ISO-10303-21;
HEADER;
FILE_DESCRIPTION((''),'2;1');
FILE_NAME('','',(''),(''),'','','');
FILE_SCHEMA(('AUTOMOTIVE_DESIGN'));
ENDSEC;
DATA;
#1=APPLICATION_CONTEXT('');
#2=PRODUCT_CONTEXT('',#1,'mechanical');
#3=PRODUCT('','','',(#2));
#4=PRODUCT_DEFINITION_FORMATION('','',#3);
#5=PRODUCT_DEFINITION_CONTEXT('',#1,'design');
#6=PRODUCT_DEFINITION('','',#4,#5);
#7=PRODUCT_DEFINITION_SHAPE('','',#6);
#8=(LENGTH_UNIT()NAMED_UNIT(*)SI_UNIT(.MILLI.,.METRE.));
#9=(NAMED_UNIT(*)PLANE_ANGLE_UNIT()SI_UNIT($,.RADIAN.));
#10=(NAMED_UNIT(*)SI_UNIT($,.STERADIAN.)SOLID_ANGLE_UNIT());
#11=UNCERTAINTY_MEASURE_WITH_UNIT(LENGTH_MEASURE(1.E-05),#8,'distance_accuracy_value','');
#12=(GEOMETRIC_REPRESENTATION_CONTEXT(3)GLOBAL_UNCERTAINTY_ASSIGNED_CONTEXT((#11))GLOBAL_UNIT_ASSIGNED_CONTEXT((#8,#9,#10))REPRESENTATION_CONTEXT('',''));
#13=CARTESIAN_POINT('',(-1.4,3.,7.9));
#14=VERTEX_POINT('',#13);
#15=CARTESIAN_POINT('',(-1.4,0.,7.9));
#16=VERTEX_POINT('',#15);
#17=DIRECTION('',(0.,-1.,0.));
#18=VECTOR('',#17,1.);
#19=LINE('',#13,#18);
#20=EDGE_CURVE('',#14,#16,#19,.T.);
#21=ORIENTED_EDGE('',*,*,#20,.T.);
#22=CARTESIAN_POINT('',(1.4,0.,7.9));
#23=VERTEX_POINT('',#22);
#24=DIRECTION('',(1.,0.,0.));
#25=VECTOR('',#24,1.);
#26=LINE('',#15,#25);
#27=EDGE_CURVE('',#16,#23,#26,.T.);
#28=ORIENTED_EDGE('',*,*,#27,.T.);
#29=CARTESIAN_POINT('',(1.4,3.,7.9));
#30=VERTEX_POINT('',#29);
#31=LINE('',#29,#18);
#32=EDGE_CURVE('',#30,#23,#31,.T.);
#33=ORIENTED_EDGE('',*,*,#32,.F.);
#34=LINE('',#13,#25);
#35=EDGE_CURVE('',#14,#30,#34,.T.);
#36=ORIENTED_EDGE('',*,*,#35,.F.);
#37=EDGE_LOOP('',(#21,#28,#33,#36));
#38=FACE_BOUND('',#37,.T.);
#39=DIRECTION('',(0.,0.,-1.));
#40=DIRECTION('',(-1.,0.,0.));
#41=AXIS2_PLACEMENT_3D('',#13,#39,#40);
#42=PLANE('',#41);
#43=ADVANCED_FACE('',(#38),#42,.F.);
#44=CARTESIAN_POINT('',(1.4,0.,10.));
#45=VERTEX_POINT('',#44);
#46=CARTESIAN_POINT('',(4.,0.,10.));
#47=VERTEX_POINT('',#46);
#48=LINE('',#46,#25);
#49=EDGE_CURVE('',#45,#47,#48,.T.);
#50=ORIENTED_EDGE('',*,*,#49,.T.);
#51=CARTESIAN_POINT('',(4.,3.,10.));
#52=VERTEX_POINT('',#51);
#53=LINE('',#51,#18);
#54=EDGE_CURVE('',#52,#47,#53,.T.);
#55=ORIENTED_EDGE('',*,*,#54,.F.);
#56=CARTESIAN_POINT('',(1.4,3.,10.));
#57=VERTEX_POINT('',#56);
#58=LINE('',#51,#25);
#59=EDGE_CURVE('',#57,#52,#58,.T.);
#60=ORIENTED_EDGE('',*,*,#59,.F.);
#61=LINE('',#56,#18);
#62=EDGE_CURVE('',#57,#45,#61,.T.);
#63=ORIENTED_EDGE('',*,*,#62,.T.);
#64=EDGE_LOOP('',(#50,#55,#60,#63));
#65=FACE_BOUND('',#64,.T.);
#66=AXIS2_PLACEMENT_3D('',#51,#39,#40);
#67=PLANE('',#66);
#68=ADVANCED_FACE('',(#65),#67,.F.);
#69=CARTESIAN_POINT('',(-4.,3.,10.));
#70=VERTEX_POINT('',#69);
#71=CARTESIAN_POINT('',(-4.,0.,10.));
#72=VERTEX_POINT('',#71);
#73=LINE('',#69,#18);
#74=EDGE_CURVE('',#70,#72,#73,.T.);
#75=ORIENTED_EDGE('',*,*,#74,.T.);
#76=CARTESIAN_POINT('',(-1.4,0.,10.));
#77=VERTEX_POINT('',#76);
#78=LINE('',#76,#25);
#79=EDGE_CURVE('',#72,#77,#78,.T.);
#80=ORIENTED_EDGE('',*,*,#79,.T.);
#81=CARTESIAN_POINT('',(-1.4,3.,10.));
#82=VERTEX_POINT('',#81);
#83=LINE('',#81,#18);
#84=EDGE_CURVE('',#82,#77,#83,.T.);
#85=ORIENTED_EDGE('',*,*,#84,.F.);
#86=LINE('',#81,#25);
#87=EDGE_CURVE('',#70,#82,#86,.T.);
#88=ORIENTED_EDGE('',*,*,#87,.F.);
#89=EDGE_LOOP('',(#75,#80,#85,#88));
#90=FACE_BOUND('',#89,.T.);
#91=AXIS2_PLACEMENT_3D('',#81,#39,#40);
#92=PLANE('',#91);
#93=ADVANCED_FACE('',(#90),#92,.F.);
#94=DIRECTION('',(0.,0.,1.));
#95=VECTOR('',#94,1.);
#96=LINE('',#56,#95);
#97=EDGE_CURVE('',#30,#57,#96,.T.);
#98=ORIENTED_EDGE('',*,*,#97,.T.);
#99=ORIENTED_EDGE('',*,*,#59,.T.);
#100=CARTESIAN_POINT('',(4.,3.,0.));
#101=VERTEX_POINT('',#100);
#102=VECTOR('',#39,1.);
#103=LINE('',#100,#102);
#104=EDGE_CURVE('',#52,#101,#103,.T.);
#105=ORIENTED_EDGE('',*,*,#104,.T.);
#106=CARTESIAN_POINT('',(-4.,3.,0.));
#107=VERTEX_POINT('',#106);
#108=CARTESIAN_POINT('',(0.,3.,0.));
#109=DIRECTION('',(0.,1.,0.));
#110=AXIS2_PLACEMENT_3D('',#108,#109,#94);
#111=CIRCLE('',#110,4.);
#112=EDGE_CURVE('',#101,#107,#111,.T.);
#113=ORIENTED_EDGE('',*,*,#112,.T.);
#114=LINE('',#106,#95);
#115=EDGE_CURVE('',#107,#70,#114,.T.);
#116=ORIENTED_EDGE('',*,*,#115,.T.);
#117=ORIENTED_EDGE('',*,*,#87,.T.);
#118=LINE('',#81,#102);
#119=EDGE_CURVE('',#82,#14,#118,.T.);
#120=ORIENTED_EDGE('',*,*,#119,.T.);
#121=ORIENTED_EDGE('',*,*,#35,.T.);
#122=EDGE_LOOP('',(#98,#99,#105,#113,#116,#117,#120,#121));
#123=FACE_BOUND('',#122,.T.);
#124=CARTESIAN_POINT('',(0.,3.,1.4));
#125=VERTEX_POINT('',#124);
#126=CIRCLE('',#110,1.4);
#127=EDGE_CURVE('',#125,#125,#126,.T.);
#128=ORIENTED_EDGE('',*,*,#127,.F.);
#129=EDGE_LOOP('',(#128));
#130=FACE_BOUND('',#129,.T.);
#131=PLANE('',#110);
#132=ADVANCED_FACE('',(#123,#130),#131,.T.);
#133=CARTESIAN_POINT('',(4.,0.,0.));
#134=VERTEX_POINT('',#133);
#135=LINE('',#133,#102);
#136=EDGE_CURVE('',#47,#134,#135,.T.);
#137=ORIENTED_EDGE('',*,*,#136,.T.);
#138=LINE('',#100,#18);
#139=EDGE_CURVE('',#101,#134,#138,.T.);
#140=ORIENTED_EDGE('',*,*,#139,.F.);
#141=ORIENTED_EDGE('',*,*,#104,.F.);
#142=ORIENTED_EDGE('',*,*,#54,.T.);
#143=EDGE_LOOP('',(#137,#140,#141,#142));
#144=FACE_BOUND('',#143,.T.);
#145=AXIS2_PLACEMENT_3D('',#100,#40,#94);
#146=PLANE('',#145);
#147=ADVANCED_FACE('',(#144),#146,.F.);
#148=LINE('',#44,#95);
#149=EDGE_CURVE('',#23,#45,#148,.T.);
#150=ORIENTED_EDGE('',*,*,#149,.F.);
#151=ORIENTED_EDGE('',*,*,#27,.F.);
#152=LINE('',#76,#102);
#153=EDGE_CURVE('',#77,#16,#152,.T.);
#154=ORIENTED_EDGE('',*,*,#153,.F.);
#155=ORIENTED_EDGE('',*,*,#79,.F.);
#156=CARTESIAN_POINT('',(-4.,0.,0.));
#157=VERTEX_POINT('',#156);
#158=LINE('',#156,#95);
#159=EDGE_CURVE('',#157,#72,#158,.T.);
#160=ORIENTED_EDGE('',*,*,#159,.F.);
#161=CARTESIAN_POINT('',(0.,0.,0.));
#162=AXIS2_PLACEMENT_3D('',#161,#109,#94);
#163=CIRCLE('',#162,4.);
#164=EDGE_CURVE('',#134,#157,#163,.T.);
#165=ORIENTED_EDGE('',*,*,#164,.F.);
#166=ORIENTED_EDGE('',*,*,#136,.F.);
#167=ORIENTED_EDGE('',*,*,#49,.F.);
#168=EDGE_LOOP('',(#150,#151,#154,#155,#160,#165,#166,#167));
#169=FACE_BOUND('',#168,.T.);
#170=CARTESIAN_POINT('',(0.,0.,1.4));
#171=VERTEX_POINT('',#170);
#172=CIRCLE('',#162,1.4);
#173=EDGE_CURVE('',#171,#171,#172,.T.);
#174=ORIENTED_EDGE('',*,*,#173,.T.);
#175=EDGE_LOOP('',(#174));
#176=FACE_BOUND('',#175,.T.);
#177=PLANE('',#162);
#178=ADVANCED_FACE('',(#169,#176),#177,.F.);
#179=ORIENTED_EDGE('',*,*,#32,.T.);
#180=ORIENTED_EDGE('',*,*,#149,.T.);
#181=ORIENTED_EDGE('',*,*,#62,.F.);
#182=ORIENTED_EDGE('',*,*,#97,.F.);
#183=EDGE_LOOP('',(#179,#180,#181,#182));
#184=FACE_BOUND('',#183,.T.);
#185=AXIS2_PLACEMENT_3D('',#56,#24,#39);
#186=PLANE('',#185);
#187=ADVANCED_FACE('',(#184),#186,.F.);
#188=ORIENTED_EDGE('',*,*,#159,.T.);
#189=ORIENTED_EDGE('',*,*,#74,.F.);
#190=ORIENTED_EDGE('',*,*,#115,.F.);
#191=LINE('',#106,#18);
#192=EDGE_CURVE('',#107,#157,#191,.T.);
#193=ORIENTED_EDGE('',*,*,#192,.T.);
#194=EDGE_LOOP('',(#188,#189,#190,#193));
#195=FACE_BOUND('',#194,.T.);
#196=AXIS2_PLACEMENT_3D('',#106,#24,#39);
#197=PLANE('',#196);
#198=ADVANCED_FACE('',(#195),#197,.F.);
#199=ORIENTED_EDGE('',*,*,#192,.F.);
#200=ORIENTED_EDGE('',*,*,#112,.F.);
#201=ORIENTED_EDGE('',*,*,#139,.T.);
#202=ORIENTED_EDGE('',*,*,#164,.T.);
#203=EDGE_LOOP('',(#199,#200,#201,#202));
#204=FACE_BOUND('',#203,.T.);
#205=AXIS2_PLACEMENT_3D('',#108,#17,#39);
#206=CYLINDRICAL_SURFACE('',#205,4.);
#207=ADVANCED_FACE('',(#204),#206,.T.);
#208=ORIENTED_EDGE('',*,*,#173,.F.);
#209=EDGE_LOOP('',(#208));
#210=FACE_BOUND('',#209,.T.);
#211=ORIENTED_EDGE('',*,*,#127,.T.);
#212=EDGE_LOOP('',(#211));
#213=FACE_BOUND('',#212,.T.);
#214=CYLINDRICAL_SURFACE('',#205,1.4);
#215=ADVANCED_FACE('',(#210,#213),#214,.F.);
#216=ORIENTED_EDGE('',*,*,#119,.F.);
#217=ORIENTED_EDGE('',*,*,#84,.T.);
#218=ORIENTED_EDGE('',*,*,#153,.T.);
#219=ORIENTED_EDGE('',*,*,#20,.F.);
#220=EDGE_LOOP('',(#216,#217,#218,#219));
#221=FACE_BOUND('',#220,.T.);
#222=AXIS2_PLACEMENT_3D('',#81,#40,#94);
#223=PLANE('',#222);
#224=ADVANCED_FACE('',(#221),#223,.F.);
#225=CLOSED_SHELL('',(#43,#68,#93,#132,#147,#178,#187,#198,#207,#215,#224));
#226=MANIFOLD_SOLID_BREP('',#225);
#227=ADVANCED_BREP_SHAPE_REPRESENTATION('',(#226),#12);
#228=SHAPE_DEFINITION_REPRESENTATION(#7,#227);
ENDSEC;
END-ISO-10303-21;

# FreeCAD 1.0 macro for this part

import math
import FreeCAD as App
import Part
import Sketcher
from FreeCAD import Vector

doc = App.newDocument("Part")
params = doc.addObject("Spreadsheet::Sheet", "Params")
for row, (alias, value) in enumerate([
    ("sketch1_radius", "4 mm"),
    ("sketch1_diameter", "2.8 mm"),
    ("sketch1_height", "10 mm"),
    ("sketch1_width", "2.6 mm"),
    ("sketch1_height2", "2.1 mm"),
    ("pad1_length", "3 mm"),
], start=1):
    params.set(f"A{row}", alias)
    params.set(f"B{row}", "=" + value)
    params.setAlias(f"B{row}", alias)

body = doc.addObject("PartDesign::Body", "Body")

# Sketch on XZ plane
sketch1 = body.newObject("Sketcher::SketchObject", "Sketch")
sketch1.AttachmentSupport = (doc.getObject("XZ_Plane"), [""])
sketch1.MapMode = "FlatFace"
sketch1.addGeometry([
    Part.LineSegment(Vector(-4, 0, 0), Vector(-4, 10, 0)),  # 0
    Part.LineSegment(Vector(-4, 10, 0), Vector(-1.4, 10, 0)),  # 1
    Part.LineSegment(Vector(-1.4, 10, 0), Vector(-1.4, 7.9, 0)),  # 2
    Part.LineSegment(Vector(-1.4, 7.9, 0), Vector(1.4, 7.9, 0)),  # 3
    Part.LineSegment(Vector(1.4, 7.9, 0), Vector(1.4, 10, 0)),  # 4
    Part.LineSegment(Vector(1.4, 10, 0), Vector(4, 10, 0)),  # 5
    Part.LineSegment(Vector(4, 10, 0), Vector(4, 0, 0)),  # 6
    Part.ArcOfCircle(Part.Circle(Vector(0, 0, 0), Vector(0, 0, 1), 4), math.radians(180), math.radians(360)),  # 7
    Part.Circle(Vector(0, 0, 0), Vector(0, 0, 1), 1.4),  # 8
], False)
sketch1.addConstraint([
    Sketcher.Constraint("Coincident", 0, 2, 1, 1),
    Sketcher.Constraint("Coincident", 1, 2, 2, 1),
    Sketcher.Constraint("Coincident", 2, 2, 3, 1),
    Sketcher.Constraint("Coincident", 3, 2, 4, 1),
    Sketcher.Constraint("Coincident", 4, 2, 5, 1),
    Sketcher.Constraint("Coincident", 5, 2, 6, 1),
    Sketcher.Constraint("Tangent", 6, 2, 7, 2),
    Sketcher.Constraint("Tangent", 7, 1, 0, 1),
    Sketcher.Constraint("Vertical", 0),
    Sketcher.Constraint("Horizontal", 1),
    Sketcher.Constraint("Vertical", 2),
    Sketcher.Constraint("Horizontal", 3),
    Sketcher.Constraint("Vertical", 4),
    Sketcher.Constraint("Horizontal", 5),
    Sketcher.Constraint("Vertical", 6),
    Sketcher.Constraint("Coincident", 7, 3, -1, 1),
    Sketcher.Constraint("Coincident", 8, 3, -1, 1),
    Sketcher.Constraint("Symmetric", 1, 2, 4, 2, -2),
    Sketcher.Constraint("Radius", 7, 4.0),
    Sketcher.Constraint("Diameter", 8, 2.8),
    Sketcher.Constraint("DistanceY", 0, 1, 0, 2, 10.0),
    Sketcher.Constraint("DistanceX", 1, 1, 1, 2, 2.6),
    Sketcher.Constraint("DistanceY", 2, 2, 2, 1, 2.1),
])
sketch1.setExpression("Constraints[18]", "Params.sketch1_radius")
sketch1.setExpression("Constraints[19]", "Params.sketch1_diameter")
sketch1.setExpression("Constraints[20]", "Params.sketch1_height")
sketch1.setExpression("Constraints[21]", "Params.sketch1_width")
sketch1.setExpression("Constraints[22]", "Params.sketch1_height2")
pad1 = body.newObject("PartDesign::Pad", "Pad")
pad1.Profile = sketch1
pad1.setExpression("Length", "Params.pad1_length")
pad1.Reversed = True

doc.recompute()
